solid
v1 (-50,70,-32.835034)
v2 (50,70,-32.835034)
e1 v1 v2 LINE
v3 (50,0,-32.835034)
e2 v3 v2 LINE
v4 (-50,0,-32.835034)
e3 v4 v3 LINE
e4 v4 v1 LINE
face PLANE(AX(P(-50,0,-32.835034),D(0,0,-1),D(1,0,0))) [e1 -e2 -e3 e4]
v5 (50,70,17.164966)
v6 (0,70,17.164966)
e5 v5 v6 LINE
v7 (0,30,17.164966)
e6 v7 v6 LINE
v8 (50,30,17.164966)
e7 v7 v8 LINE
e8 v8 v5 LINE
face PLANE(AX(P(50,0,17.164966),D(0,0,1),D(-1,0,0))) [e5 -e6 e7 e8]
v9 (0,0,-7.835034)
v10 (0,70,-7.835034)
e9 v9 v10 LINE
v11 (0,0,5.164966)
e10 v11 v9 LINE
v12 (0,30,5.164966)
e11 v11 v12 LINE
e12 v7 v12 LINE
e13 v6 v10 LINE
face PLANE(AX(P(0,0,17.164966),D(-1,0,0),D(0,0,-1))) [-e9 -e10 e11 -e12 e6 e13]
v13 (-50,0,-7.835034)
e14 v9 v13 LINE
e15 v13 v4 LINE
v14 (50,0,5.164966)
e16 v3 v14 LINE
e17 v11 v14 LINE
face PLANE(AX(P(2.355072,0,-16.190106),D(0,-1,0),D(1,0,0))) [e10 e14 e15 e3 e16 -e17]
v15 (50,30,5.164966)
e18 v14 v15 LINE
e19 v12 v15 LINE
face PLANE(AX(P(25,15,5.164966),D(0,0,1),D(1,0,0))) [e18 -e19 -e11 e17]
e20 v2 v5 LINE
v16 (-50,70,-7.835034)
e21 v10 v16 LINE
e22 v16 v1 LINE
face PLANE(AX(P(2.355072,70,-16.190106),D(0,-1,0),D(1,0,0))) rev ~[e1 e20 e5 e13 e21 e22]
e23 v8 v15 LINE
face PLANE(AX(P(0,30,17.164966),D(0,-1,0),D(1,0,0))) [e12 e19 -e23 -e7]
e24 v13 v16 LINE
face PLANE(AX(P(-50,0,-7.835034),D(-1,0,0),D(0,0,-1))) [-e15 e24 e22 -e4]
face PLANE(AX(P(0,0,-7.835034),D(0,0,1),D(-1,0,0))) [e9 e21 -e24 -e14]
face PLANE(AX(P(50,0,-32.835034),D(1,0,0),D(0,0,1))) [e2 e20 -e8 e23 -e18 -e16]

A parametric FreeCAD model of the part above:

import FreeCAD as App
import Part
import Sketcher
from FreeCAD import Vector


def add_polygon(sketch, points):
    """Adds a closed chain of lines whose ends are joined by coincident constraints."""
    first, n = sketch.GeometryCount, len(points)
    for a, b in zip(points, points[1:] + points[:1]):
        sketch.addGeometry(Part.LineSegment(App.Vector(*a, 0), App.Vector(*b, 0)), False)
    for i in range(n):
        sketch.addConstraint(Sketcher.Constraint("Coincident", first + i, 2, first + (i + 1) % n, 1))

doc = App.newDocument("Part")
body = doc.addObject("PartDesign::Body", "Body")

sketch1 = body.newObject("Sketcher::SketchObject", "Sketch")
sketch1.AttachmentSupport = (doc.getObject("XZ_Plane"), [""])
sketch1.MapMode = "FlatFace"
add_polygon(sketch1, [(-50, -8), (-50, -33), (50, -33), (50, 17), (0, 17), (0, -8)])
sketch1.addConstraint([
    Sketcher.Constraint("Vertical", 0),
    Sketcher.Constraint("Horizontal", 1),
    Sketcher.Constraint("Vertical", 2),
    Sketcher.Constraint("Horizontal", 3),
    Sketcher.Constraint("Vertical", 4),
    Sketcher.Constraint("Horizontal", 5),
    Sketcher.Constraint("PointOnObject", 3, 2, -2),
    Sketcher.Constraint("Equal", 3, 5),
    Sketcher.Constraint("Equal", 5, 2),
    Sketcher.Constraint("Equal", 0, 4),
    Sketcher.Constraint("DistanceX", 1, 1, 1, 2, 100.0),
    Sketcher.Constraint("DistanceY", 0, 2, -1, 1, 32.835034),
])
pad1 = body.newObject("PartDesign::Pad", "Pad")
pad1.Profile = sketch1
pad1.Length = 70
pad1.Reversed = True

sketch2 = body.newObject("Sketcher::SketchObject", "Sketch001")
sketch2.AttachmentSupport = (doc.getObject("XY_Plane"), [""])
sketch2.MapMode = "FlatFace"
sketch2.AttachmentOffset = App.Placement(Vector(0, 0, 17.164966), App.Rotation())
add_polygon(sketch2, [(0, 30), (0, 0), (50, 0), (50, 30)])
sketch2.addConstraint([
    Sketcher.Constraint("Vertical", 0),
    Sketcher.Constraint("Horizontal", 1),
    Sketcher.Constraint("Vertical", 2),
    Sketcher.Constraint("Horizontal", 3),
    Sketcher.Constraint("Coincident", 0, 2, -1, 1),
    Sketcher.Constraint("DistanceX", 1, 1, 1, 2, 50.0),
    Sketcher.Constraint("DistanceY", 0, 2, 0, 1, 30.0),
])
pocket1 = body.newObject("PartDesign::Pocket", "Pocket")
pocket1.Profile = sketch2
pocket1.Length = 12

doc.recompute()
